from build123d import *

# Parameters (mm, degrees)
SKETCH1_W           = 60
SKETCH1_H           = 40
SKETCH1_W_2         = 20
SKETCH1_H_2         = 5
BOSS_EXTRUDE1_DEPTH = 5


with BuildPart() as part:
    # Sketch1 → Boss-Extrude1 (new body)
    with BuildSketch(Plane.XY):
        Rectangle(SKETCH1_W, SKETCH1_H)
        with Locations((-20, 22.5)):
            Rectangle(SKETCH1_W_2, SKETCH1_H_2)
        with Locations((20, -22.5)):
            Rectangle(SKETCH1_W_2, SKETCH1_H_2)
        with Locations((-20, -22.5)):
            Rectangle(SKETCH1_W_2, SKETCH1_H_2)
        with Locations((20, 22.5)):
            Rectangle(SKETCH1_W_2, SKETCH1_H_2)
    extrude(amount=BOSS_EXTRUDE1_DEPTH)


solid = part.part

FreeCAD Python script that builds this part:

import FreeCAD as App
import Part
import Sketcher

V = App.Vector
Q = App.Units.Quantity

doc = App.newDocument("Part")
body = doc.addObject("PartDesign::Body", "Body")

# Sketch on XY plane
sketch1 = doc.addObject("Sketcher::SketchObject", "Sketch")
body.addObject(sketch1)
sketch1.AttachmentSupport = (doc.XY_Plane, [""])
sketch1.MapMode = "FlatFace"
sketch1.addGeometry(Part.LineSegment(V(-10, -20, 0), V(10, -20, 0)), False)
sketch1.addGeometry(Part.LineSegment(V(10, -20, 0), V(10, -25, 0)), False)
sketch1.addGeometry(Part.LineSegment(V(10, -25, 0), V(30, -25, 0)), False)
sketch1.addGeometry(Part.LineSegment(V(30, -25, 0), V(30, 25, 0)), False)
sketch1.addGeometry(Part.LineSegment(V(30, 25, 0), V(10, 25, 0)), False)
sketch1.addGeometry(Part.LineSegment(V(10, 25, 0), V(10, 20, 0)), False)
sketch1.addGeometry(Part.LineSegment(V(10, 20, 0), V(-10, 20, 0)), False)
sketch1.addGeometry(Part.LineSegment(V(-10, 20, 0), V(-10, 25, 0)), False)
sketch1.addGeometry(Part.LineSegment(V(-10, 25, 0), V(-30, 25, 0)), False)
sketch1.addGeometry(Part.LineSegment(V(-30, 25, 0), V(-30, -25, 0)), False)
sketch1.addGeometry(Part.LineSegment(V(-30, -25, 0), V(-10, -25, 0)), False)
sketch1.addGeometry(Part.LineSegment(V(-10, -25, 0), V(-10, -20, 0)), False)
sketch1.addConstraint(Sketcher.Constraint("Coincident", 0, 2, 1, 1))
sketch1.addConstraint(Sketcher.Constraint("Coincident", 1, 2, 2, 1))
sketch1.addConstraint(Sketcher.Constraint("Coincident", 2, 2, 3, 1))
sketch1.addConstraint(Sketcher.Constraint("Coincident", 3, 2, 4, 1))
sketch1.addConstraint(Sketcher.Constraint("Coincident", 4, 2, 5, 1))
sketch1.addConstraint(Sketcher.Constraint("Coincident", 5, 2, 6, 1))
sketch1.addConstraint(Sketcher.Constraint("Coincident", 6, 2, 7, 1))
sketch1.addConstraint(Sketcher.Constraint("Coincident", 7, 2, 8, 1))
sketch1.addConstraint(Sketcher.Constraint("Coincident", 8, 2, 9, 1))
sketch1.addConstraint(Sketcher.Constraint("Coincident", 9, 2, 10, 1))
sketch1.addConstraint(Sketcher.Constraint("Coincident", 10, 2, 11, 1))
sketch1.addConstraint(Sketcher.Constraint("Coincident", 11, 2, 0, 1))
sketch1.addConstraint(Sketcher.Constraint("Horizontal", 0))
sketch1.addConstraint(Sketcher.Constraint("Vertical", 1))
sketch1.addConstraint(Sketcher.Constraint("Horizontal", 2))
sketch1.addConstraint(Sketcher.Constraint("Vertical", 3))
sketch1.addConstraint(Sketcher.Constraint("Horizontal", 4))
sketch1.addConstraint(Sketcher.Constraint("Vertical", 5))
sketch1.addConstraint(Sketcher.Constraint("Horizontal", 6))
sketch1.addConstraint(Sketcher.Constraint("Vertical", 7))
sketch1.addConstraint(Sketcher.Constraint("Horizontal", 8))
sketch1.addConstraint(Sketcher.Constraint("Vertical", 9))
sketch1.addConstraint(Sketcher.Constraint("Horizontal", 10))
sketch1.addConstraint(Sketcher.Constraint("Vertical", 11))
sketch1.addConstraint(Sketcher.Constraint("Symmetric", 0, 2, 6, 2, -1, 1))
sketch1.addConstraint(Sketcher.Constraint("Symmetric", 2, 2, 8, 2, -1, 1))
sketch1.addConstraint(Sketcher.Constraint("Symmetric", 4, 2, 10, 2, -1, 1))
sketch1.addConstraint(Sketcher.Constraint("Symmetric", 4, 2, 7, 2, -2))
sketch1.addConstraint(Sketcher.Constraint("Equal", 0, 2))
sketch1.addConstraint(Sketcher.Constraint("DistanceX", 0, 1, 0, 2, Q("20 mm")))
sketch1.addConstraint(Sketcher.Constraint("DistanceY", 1, 2, 1, 1, Q("5 mm")))
sketch1.addConstraint(Sketcher.Constraint("DistanceY", 3, 1, 3, 2, Q("50 mm")))
pad1 = doc.addObject("PartDesign::Pad", "Pad")
body.addObject(pad1)
pad1.Profile = sketch1
pad1.Length = 5

doc.recompute()
